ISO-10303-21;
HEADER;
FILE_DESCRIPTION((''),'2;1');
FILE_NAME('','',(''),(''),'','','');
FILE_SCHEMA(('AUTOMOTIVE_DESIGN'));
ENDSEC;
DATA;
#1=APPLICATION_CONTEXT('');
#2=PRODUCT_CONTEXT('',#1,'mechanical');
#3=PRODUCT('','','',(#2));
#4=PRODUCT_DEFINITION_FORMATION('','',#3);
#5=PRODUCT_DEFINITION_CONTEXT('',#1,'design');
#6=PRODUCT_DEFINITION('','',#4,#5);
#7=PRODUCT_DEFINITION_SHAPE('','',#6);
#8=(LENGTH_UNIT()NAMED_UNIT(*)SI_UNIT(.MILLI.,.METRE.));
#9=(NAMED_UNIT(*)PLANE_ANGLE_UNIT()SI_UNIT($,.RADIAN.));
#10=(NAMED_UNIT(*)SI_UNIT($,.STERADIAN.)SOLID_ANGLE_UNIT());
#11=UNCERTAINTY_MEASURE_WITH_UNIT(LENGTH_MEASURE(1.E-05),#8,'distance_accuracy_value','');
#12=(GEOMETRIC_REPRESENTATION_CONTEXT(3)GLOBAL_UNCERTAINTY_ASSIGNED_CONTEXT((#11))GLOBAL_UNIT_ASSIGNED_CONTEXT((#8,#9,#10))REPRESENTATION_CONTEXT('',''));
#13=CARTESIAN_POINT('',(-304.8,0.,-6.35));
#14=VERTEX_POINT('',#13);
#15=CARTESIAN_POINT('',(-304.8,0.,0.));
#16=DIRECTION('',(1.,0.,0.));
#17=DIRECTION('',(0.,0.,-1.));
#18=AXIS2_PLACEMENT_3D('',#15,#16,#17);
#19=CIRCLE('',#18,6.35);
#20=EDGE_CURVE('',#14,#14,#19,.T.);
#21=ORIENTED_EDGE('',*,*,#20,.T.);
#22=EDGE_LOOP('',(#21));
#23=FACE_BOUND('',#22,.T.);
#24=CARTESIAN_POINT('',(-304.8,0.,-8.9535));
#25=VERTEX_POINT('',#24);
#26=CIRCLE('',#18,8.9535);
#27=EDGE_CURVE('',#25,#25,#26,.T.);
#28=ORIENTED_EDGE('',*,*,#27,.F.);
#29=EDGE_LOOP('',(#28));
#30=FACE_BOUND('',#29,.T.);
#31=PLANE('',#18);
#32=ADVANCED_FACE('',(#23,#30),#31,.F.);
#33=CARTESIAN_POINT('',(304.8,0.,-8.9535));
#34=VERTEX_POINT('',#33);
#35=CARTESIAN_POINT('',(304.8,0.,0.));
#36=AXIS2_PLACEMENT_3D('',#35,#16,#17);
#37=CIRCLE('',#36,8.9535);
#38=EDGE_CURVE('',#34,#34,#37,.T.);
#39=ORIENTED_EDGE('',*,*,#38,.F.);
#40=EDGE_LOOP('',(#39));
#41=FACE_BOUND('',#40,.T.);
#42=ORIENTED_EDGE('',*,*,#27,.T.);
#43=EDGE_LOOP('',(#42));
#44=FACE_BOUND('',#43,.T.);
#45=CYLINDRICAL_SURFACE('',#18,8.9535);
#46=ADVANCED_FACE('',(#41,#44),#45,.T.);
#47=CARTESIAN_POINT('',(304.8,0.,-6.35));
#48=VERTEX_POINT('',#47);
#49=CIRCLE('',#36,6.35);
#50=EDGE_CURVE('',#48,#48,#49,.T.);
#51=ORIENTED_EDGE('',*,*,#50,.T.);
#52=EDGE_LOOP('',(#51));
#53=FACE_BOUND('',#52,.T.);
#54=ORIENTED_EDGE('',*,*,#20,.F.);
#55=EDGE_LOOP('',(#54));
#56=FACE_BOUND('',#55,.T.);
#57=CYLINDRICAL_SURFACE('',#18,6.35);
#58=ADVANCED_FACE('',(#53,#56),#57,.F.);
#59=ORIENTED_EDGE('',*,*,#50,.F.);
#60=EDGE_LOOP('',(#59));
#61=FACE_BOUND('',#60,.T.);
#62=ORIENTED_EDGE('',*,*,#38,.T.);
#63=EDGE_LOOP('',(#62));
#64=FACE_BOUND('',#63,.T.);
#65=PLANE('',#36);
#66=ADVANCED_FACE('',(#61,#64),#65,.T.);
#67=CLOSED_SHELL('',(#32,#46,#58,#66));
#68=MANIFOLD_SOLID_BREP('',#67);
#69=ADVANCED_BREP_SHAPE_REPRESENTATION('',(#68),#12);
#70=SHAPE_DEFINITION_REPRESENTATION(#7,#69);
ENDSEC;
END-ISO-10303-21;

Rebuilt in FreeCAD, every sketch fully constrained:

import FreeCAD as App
import Part
import Sketcher
from FreeCAD import Vector
Q = App.Units.Quantity

doc = App.newDocument("Part")
body = doc.addObject("PartDesign::Body", "Body")

# Sketch on YZ plane
sketch1 = doc.addObject("Sketcher::SketchObject", "Sketch")
body.addObject(sketch1)
sketch1.AttachmentSupport = (doc.YZ_Plane, [""])
sketch1.MapMode = "FlatFace"
sketch1.addGeometry([
    Part.Circle(Vector(0, 0, 0), Vector(0, 0, 1), 8.9535),
    Part.Circle(Vector(0, 0, 0), Vector(0, 0, 1), 6.35),
], False)
sketch1.addConstraint([
    Sketcher.Constraint("Coincident", 0, 3, -1, 1),
    Sketcher.Constraint("Coincident", 1, 3, -1, 1),
    Sketcher.Constraint("Diameter", 1, Q("0.5 in")),
    Sketcher.Constraint("Diameter", 0, Q("0.705 in")),
])
pad1 = doc.addObject("PartDesign::Pad", "Pad")
body.addObject(pad1)
pad1.Profile = sketch1
pad1.Type = "TwoLengths"
pad1.Length = Q("12 in")
pad1.Length2 = Q("12 in")

doc.recompute()
